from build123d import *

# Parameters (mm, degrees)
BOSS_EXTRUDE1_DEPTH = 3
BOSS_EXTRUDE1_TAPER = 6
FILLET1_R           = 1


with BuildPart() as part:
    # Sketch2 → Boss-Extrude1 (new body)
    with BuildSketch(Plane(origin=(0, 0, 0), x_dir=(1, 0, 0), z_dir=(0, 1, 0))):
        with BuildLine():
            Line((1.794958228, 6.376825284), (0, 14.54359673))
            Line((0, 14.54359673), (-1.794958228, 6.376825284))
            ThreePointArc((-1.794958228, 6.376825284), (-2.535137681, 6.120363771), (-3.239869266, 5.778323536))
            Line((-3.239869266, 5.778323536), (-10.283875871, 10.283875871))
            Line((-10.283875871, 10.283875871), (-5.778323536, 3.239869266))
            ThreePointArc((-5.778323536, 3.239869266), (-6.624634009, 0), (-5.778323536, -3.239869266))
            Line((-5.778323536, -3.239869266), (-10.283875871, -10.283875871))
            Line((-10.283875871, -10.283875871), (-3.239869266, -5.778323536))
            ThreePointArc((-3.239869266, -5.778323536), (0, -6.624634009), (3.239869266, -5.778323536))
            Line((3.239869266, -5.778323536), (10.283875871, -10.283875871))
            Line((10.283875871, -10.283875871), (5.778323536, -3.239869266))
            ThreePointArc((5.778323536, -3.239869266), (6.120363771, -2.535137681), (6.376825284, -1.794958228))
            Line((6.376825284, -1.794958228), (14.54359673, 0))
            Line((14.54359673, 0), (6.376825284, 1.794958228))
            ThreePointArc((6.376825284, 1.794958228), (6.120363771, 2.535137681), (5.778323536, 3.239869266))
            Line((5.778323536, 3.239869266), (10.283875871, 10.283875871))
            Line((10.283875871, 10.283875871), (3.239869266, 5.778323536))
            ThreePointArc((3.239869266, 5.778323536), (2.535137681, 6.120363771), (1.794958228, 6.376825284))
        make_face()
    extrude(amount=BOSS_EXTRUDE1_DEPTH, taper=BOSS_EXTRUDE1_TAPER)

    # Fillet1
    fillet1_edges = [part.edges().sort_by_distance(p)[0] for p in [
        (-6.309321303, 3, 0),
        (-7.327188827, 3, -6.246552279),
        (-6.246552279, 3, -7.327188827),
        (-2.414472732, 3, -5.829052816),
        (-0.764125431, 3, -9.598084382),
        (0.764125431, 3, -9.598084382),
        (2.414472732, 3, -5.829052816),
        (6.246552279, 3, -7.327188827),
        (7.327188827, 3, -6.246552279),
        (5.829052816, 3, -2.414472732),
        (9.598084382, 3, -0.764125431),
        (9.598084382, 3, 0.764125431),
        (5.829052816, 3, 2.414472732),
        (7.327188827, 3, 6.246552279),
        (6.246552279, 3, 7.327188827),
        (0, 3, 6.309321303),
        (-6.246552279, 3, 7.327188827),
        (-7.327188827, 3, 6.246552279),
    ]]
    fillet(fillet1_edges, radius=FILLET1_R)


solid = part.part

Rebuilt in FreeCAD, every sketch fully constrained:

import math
import FreeCAD as App
import Part
import Sketcher

V = App.Vector


def edges_at(feature, points):
    """Names of the edges that pass closest to the given points."""
    edges = feature.Shape.Edges
    near = lambda p: min(range(len(edges)), key=lambda i: edges[i].distToShape(Part.Vertex(*p))[0])
    return sorted({f"Edge{near(p) + 1}" for p in points})

doc = App.newDocument("Part")
params = doc.addObject("Spreadsheet::Sheet", "Params")
for row, (alias, value) in enumerate([
    ("pad1_length", "3 mm"),
    ("pad1_taper", "-6 deg"),
    ("fillet_radius", "1 mm"),
], start=1):
    params.set(f"A{row}", alias)
    params.set(f"B{row}", "=" + value)
    params.setAlias(f"B{row}", alias)

body = doc.addObject("PartDesign::Body", "Body")

# Sketch on XZ plane
sketch1 = body.newObject("Sketcher::SketchObject", "Sketch")
sketch1.AttachmentSupport = (doc.getObject("XZ_Plane"), [""])
sketch1.MapMode = "FlatFace"
sketch1.addGeometry(Part.LineSegment(V(1.8, -6.4, 0), V(0, -14.5, 0)), False)
sketch1.addGeometry(Part.LineSegment(V(0, -14.5, 0), V(-1.8, -6.4, 0)), False)
sketch1.addGeometry(Part.ArcOfCircle(Part.Circle(V(0, 0, 0), V(0, 0, 1), 6.6), math.radians(-119.28), math.radians(-105.72)), False)
sketch1.addGeometry(Part.LineSegment(V(-3.2, -5.8, 0), V(-10.3, -10.3, 0)), False)
sketch1.addGeometry(Part.LineSegment(V(-10.3, -10.3, 0), V(-5.8, -3.2, 0)), False)
sketch1.addGeometry(Part.ArcOfCircle(Part.Circle(V(0, 0, 0), V(0, 0, 1), 6.6), math.radians(151), math.radians(209)), False)
sketch1.addGeometry(Part.LineSegment(V(-5.8, 3.2, 0), V(-10.3, 10.3, 0)), False)
sketch1.addGeometry(Part.LineSegment(V(-10.3, 10.3, 0), V(-3.2, 5.8, 0)), False)
sketch1.addGeometry(Part.ArcOfCircle(Part.Circle(V(0, 0, 0), V(0, 0, 1), 6.6), math.radians(61), math.radians(119)), False)
sketch1.addGeometry(Part.LineSegment(V(3.2, 5.8, 0), V(10.3, 10.3, 0)), False)
sketch1.addGeometry(Part.LineSegment(V(10.3, 10.3, 0), V(5.8, 3.2, 0)), False)
sketch1.addGeometry(Part.ArcOfCircle(Part.Circle(V(0, 0, 0), V(0, 0, 1), 6.6), math.radians(15.72), math.radians(29.28)), False)
sketch1.addGeometry(Part.LineSegment(V(6.4, 1.8, 0), V(14.5, 0, 0)), False)
sketch1.addGeometry(Part.LineSegment(V(14.5, 0, 0), V(6.4, -1.8, 0)), False)
sketch1.addGeometry(Part.ArcOfCircle(Part.Circle(V(0, 0, 0), V(0, 0, 1), 6.6), math.radians(-29.28), math.radians(-15.72)), False)
sketch1.addGeometry(Part.LineSegment(V(5.8, -3.2, 0), V(10.3, -10.3, 0)), False)
sketch1.addGeometry(Part.LineSegment(V(10.3, -10.3, 0), V(3.2, -5.8, 0)), False)
sketch1.addGeometry(Part.ArcOfCircle(Part.Circle(V(0, 0, 0), V(0, 0, 1), 6.6), math.radians(-74.28), math.radians(-60.72)), False)
sketch1.addConstraint(Sketcher.Constraint("Coincident", 0, 2, 1, 1))
sketch1.addConstraint(Sketcher.Constraint("Coincident", 1, 2, 2, 2))
sketch1.addConstraint(Sketcher.Constraint("Coincident", 2, 1, 3, 1))
sketch1.addConstraint(Sketcher.Constraint("Coincident", 3, 2, 4, 1))
sketch1.addConstraint(Sketcher.Constraint("Coincident", 4, 2, 5, 2))
sketch1.addConstraint(Sketcher.Constraint("Coincident", 5, 1, 6, 1))
sketch1.addConstraint(Sketcher.Constraint("Coincident", 6, 2, 7, 1))
sketch1.addConstraint(Sketcher.Constraint("Coincident", 7, 2, 8, 2))
sketch1.addConstraint(Sketcher.Constraint("Coincident", 8, 1, 9, 1))
sketch1.addConstraint(Sketcher.Constraint("Coincident", 9, 2, 10, 1))
sketch1.addConstraint(Sketcher.Constraint("Coincident", 10, 2, 11, 2))
sketch1.addConstraint(Sketcher.Constraint("Coincident", 11, 1, 12, 1))
sketch1.addConstraint(Sketcher.Constraint("Coincident", 12, 2, 13, 1))
sketch1.addConstraint(Sketcher.Constraint("Coincident", 13, 2, 14, 2))
sketch1.addConstraint(Sketcher.Constraint("Coincident", 14, 1, 15, 1))
sketch1.addConstraint(Sketcher.Constraint("Coincident", 15, 2, 16, 1))
sketch1.addConstraint(Sketcher.Constraint("Coincident", 16, 2, 17, 2))
sketch1.addConstraint(Sketcher.Constraint("Coincident", 17, 1, 0, 1))
sketch1.addConstraint(Sketcher.Constraint("Coincident", 2, 3, -1, 1))
sketch1.addConstraint(Sketcher.Constraint("Coincident", 5, 3, -1, 1))
sketch1.addConstraint(Sketcher.Constraint("Coincident", 8, 3, -1, 1))
sketch1.addConstraint(Sketcher.Constraint("Coincident", 11, 3, -1, 1))
sketch1.addConstraint(Sketcher.Constraint("Coincident", 14, 3, -1, 1))
sketch1.addConstraint(Sketcher.Constraint("Coincident", 17, 3, -1, 1))
sketch1.addConstraint(Sketcher.Constraint("Equal", 2, 5))
sketch1.addConstraint(Sketcher.Constraint("Equal", 5, 8))
sketch1.addConstraint(Sketcher.Constraint("Equal", 8, 11))
sketch1.addConstraint(Sketcher.Constraint("Equal", 11, 14))
sketch1.addConstraint(Sketcher.Constraint("Equal", 14, 17))
sketch1.addConstraint(Sketcher.Constraint("Symmetric", 3, 2, 9, 2, -1, 1))
sketch1.addConstraint(Sketcher.Constraint("Symmetric", 6, 2, 15, 2, -1, 1))
sketch1.addConstraint(Sketcher.Constraint("Symmetric", 6, 2, 9, 2, -2))
sketch1.addConstraint(Sketcher.Constraint("PointOnObject", 0, 2, -2))
sketch1.addConstraint(Sketcher.Constraint("PointOnObject", 12, 2, -1))
sketch1.addConstraint(Sketcher.Constraint("Perpendicular", 3, 6))
sketch1.addConstraint(Sketcher.Constraint("Perpendicular", 4, 7))
sketch1.addConstraint(Sketcher.Constraint("Perpendicular", 6, 9))
sketch1.addConstraint(Sketcher.Constraint("Perpendicular", 7, 10))
sketch1.addConstraint(Sketcher.Constraint("Perpendicular", 0, 12))
sketch1.addConstraint(Sketcher.Constraint("Perpendicular", 1, 13))
sketch1.addConstraint(Sketcher.Constraint("Perpendicular", 9, 15))
sketch1.addConstraint(Sketcher.Constraint("Perpendicular", 10, 16))
sketch1.addConstraint(Sketcher.Constraint("Horizontal", 7, 2, 8, 1))
sketch1.addConstraint(Sketcher.Constraint("Horizontal", 1, 2, 17, 1))
sketch1.addConstraint(Sketcher.Constraint("Equal", 1, 3))
sketch1.addConstraint(Sketcher.Constraint("Equal", 3, 4))
sketch1.addConstraint(Sketcher.Constraint("Equal", 10, 12))
sketch1.addConstraint(Sketcher.Constraint("Radius", 2, 6.624634))
sketch1.addConstraint(Sketcher.Constraint("Distance", 0, 8.3617))
sketch1.addConstraint(Sketcher.Constraint("DistanceY", 1, 2, 2, 1, 0.598502))
sketch1.addConstraint(Sketcher.Constraint("DistanceX", 1, 2, -1, 1, 1.794958))
pad1 = body.newObject("PartDesign::Pad", "Pad")
pad1.Profile = sketch1
pad1.setExpression("Length", "Params.pad1_length")
pad1.Reversed = True
pad1.setExpression("TaperAngle", "Params.pad1_taper")
doc.recompute()

fillet = body.newObject("PartDesign::Fillet", "Fillet")
fillet.Base = (pad1, edges_at(pad1, [
    (-6.309, 3, 0),
    (-7.327, 3, -6.247),
    (-6.247, 3, -7.327),
    (-2.414, 3, -5.829),
    (-0.764, 3, -9.598),
    (0.764, 3, -9.598),
    (2.414, 3, -5.829),
    (6.247, 3, -7.327),
    (7.327, 3, -6.247),
    (5.829, 3, -2.414),
    (9.598, 3, -0.764),
    (9.598, 3, 0.764),
    (5.829, 3, 2.414),
    (7.327, 3, 6.247),
    (6.247, 3, 7.327),
    (0, 3, 6.309),
    (-6.247, 3, 7.327),
    (-7.327, 3, 6.247),
]))
fillet.setExpression("Radius", "Params.fillet_radius")

doc.recompute()
